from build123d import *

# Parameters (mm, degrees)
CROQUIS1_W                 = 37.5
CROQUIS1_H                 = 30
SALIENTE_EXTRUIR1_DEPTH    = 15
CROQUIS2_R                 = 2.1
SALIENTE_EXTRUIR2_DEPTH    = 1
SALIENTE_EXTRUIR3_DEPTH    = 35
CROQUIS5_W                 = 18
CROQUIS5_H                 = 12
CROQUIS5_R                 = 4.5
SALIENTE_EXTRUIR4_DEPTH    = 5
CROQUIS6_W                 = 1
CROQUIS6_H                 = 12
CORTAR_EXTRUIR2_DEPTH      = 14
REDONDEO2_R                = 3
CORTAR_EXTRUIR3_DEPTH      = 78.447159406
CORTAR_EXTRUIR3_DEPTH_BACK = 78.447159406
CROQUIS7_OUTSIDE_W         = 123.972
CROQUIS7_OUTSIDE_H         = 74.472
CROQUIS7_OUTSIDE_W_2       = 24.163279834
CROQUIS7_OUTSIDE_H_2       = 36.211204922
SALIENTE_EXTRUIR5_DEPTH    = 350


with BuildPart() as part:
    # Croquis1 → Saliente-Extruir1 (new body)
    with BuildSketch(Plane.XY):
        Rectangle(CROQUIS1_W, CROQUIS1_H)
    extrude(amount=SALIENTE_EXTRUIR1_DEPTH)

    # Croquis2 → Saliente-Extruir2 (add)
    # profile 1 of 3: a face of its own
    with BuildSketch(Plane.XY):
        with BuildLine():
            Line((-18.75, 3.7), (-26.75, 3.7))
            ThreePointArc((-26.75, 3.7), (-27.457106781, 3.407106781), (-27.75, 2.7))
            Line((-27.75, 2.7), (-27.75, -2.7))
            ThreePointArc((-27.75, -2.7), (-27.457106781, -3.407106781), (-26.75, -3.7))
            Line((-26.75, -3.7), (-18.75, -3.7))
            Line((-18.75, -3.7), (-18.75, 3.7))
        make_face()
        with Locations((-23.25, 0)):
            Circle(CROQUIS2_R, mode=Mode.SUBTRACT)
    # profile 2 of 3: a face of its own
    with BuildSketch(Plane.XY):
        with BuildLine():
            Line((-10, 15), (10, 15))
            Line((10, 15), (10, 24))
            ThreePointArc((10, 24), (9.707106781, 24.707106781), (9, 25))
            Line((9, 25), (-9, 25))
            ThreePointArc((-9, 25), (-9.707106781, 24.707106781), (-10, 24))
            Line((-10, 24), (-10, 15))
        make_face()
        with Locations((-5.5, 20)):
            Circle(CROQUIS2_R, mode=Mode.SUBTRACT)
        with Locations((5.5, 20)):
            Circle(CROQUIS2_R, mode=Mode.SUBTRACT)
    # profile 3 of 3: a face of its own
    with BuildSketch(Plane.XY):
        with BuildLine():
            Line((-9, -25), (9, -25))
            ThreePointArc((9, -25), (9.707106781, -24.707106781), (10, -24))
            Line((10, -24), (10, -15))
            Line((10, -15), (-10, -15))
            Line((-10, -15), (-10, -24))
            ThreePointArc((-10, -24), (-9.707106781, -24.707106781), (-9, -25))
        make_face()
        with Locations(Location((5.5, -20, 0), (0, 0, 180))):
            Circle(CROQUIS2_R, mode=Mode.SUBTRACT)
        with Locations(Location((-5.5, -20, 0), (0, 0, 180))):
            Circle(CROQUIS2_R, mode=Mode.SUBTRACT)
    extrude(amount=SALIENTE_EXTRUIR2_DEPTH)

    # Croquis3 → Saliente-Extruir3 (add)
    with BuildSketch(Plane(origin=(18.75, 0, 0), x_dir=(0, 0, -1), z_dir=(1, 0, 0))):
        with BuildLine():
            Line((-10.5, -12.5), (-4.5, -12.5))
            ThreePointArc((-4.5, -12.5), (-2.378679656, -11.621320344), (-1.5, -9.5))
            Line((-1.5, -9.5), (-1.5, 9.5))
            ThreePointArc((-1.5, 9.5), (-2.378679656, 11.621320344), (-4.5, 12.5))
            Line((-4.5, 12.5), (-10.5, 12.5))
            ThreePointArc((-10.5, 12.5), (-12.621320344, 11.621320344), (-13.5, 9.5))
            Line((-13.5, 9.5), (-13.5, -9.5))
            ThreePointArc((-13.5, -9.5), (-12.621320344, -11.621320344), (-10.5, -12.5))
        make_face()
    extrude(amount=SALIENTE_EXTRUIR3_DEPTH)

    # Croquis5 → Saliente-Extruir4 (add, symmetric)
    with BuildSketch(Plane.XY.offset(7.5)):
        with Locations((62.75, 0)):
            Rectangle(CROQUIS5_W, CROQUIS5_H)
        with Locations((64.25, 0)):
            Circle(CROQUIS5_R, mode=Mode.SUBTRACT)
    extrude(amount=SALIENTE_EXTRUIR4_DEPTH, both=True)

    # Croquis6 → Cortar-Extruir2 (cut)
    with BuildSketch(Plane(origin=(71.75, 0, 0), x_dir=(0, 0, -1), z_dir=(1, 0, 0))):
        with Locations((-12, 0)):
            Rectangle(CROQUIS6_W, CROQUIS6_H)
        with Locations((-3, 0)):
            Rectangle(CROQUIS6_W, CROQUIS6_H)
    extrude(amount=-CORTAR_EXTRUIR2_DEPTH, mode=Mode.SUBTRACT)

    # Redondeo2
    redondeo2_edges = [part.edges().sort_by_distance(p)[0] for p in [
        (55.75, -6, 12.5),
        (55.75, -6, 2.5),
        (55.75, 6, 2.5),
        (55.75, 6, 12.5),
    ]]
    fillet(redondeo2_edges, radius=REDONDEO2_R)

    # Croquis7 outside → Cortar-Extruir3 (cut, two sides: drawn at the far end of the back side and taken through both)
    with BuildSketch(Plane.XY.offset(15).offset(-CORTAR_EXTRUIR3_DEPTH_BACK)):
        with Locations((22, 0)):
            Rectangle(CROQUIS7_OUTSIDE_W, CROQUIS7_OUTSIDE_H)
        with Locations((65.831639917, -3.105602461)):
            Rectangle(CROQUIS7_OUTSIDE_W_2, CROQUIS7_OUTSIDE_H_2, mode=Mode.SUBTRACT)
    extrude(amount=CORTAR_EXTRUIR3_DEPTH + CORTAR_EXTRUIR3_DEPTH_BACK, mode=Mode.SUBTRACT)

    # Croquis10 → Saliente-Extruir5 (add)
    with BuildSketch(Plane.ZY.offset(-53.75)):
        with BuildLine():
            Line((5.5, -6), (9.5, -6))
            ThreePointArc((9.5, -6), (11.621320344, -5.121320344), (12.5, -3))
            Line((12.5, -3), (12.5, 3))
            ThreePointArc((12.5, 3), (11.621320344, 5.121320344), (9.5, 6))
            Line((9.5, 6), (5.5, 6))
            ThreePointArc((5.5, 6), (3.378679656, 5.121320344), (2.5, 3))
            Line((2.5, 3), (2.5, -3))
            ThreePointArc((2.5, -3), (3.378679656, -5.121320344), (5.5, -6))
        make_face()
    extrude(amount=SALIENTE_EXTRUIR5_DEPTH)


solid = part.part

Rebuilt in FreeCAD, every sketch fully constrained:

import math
import FreeCAD as App
import Part
import Sketcher
Q = App.Units.Quantity


def edges_at(feature, points):
    """Names of the edges that pass closest to the given points."""
    edges = feature.Shape.Edges
    near = lambda p: min(range(len(edges)), key=lambda i: edges[i].distToShape(Part.Vertex(*p))[0])
    return sorted({f"Edge{near(p) + 1}" for p in points})


def add_polygon(sketch, points):
    """Adds a closed chain of lines whose ends are joined by coincident constraints."""
    first, n = sketch.GeometryCount, len(points)
    for a, b in zip(points, points[1:] + points[:1]):
        sketch.addGeometry(Part.LineSegment(App.Vector(*a, 0), App.Vector(*b, 0)), False)
    for i in range(n):
        sketch.addConstraint(Sketcher.Constraint("Coincident", first + i, 2, first + (i + 1) % n, 1))

doc = App.newDocument("Part")
params = doc.addObject("Spreadsheet::Sheet", "Params")
for row, (alias, value) in enumerate([
    ("sketch1_height", "30 mm"),
    ("sketch1_width", "37.5 mm"),
    ("pad1_length", "15 mm"),
    ("sketch2_radius", "1 mm"),
    ("sketch2_diameter", "4.2 mm"),
    ("sketch2_width", "8 mm"),
    ("sketch2_width2", "20 mm"),
    ("sketch2_height", "9 mm"),
    ("pad2_length", "1 mm"),
    ("sketch3_radius", "3 mm"),
    ("sketch3_width", "19 mm"),
    ("sketch3_height", "6 mm"),
    ("pad3_length", "35 mm"),
    ("sketch4_diameter", "9 mm"),
    ("sketch4_width", "18 mm"),
    ("sketch4_height", "12 mm"),
    ("pad4_length", "10 mm"),
    ("sketch5_width", "12 mm"),
    ("sketch5_height", "1 mm"),
    ("pocket1_length", "14 mm"),
    ("fillet_radius", "3 mm"),
    ("sketch7_radius", "3 mm"),
    ("sketch7_width", "6 mm"),
    ("sketch7_height", "4 mm"),
    ("pad5_length", "350 mm"),
], start=1):
    params.set(f"A{row}", alias)
    params.set(f"B{row}", "=" + value)
    params.setAlias(f"B{row}", alias)

body = doc.addObject("PartDesign::Body", "Body")

sketch1 = doc.addObject("Sketcher::SketchObject", "Sketch")
body.addObject(sketch1)
sketch1.AttachmentSupport = (doc.XY_Plane, [""])
sketch1.MapMode = "FlatFace"
add_polygon(sketch1, [(-19, 15), (-19, -15), (19, -15), (19, 15)])
sketch1.addConstraint(Sketcher.Constraint("Vertical", 0))
sketch1.addConstraint(Sketcher.Constraint("Horizontal", 1))
sketch1.addConstraint(Sketcher.Constraint("Vertical", 2))
sketch1.addConstraint(Sketcher.Constraint("Horizontal", 3))
sketch1.addConstraint(Sketcher.Constraint("Symmetric", 0, 2, 2, 2, -1, 1))
sketch1.addConstraint(Sketcher.Constraint("DistanceY", 0, 2, 0, 1, Q("30 mm")))
sketch1.addConstraint(Sketcher.Constraint("DistanceX", 1, 1, 1, 2, Q("37.5 mm")))
sketch1.setExpression("Constraints[9]", "Params.sketch1_height")
sketch1.setExpression("Constraints[10]", "Params.sketch1_width")
pad1 = doc.addObject("PartDesign::Pad", "Pad")
body.addObject(pad1)
pad1.Profile = sketch1
pad1.setExpression("Length", "Params.pad1_length")

sketch2 = doc.addObject("Sketcher::SketchObject", "Sketch001")
body.addObject(sketch2)
sketch2.AttachmentSupport = (doc.XY_Plane, [""])
sketch2.MapMode = "FlatFace"
sketch2.addGeometry(Part.LineSegment(App.Vector(-18.8, 3.7, 0), App.Vector(-26.8, 3.7, 0)), False)
sketch2.addGeometry(Part.ArcOfCircle(Part.Circle(App.Vector(-26.7, 2.7, 0), App.Vector(0, 0, 1), 1), math.radians(90), math.radians(180)), False)
sketch2.addGeometry(Part.LineSegment(App.Vector(-27.8, 2.7, 0), App.Vector(-27.8, -2.7, 0)), False)
sketch2.addGeometry(Part.ArcOfCircle(Part.Circle(App.Vector(-26.7, -2.7, 0), App.Vector(0, 0, 1), 1), math.radians(-180), math.radians(-90)), False)
sketch2.addGeometry(Part.LineSegment(App.Vector(-26.8, -3.7, 0), App.Vector(-18.8, -3.7, 0)), False)
sketch2.addGeometry(Part.LineSegment(App.Vector(-18.8, -3.7, 0), App.Vector(-18.8, 3.7, 0)), False)
sketch2.addGeometry(Part.Circle(App.Vector(-23.2, 0, 0), App.Vector(0, 0, 1), 2.1), False)
sketch2.addGeometry(Part.LineSegment(App.Vector(-10, 15, 0), App.Vector(10, 15, 0)), False)
sketch2.addGeometry(Part.LineSegment(App.Vector(10, 15, 0), App.Vector(10, 24, 0)), False)
sketch2.addGeometry(Part.ArcOfCircle(Part.Circle(App.Vector(9, 24, 0), App.Vector(0, 0, 1), 1), math.radians(0), math.radians(90)), False)
sketch2.addGeometry(Part.LineSegment(App.Vector(9, 25, 0), App.Vector(-9, 25, 0)), False)
sketch2.addGeometry(Part.ArcOfCircle(Part.Circle(App.Vector(-9, 24, 0), App.Vector(0, 0, 1), 1), math.radians(90), math.radians(180)), False)
sketch2.addGeometry(Part.LineSegment(App.Vector(-10, 24, 0), App.Vector(-10, 15, 0)), False)
sketch2.addGeometry(Part.Circle(App.Vector(-5.5, 20, 0), App.Vector(0, 0, 1), 2.1), False)
sketch2.addGeometry(Part.Circle(App.Vector(5.5, 20, 0), App.Vector(0, 0, 1), 2.1), False)
sketch2.addGeometry(Part.LineSegment(App.Vector(-9, -25, 0), App.Vector(9, -25, 0)), False)
sketch2.addGeometry(Part.ArcOfCircle(Part.Circle(App.Vector(9, -24, 0), App.Vector(0, 0, 1), 1), math.radians(-90), math.radians(0)), False)
sketch2.addGeometry(Part.LineSegment(App.Vector(10, -24, 0), App.Vector(10, -15, 0)), False)
sketch2.addGeometry(Part.LineSegment(App.Vector(10, -15, 0), App.Vector(-10, -15, 0)), False)
sketch2.addGeometry(Part.LineSegment(App.Vector(-10, -15, 0), App.Vector(-10, -24, 0)), False)
sketch2.addGeometry(Part.ArcOfCircle(Part.Circle(App.Vector(-9, -24, 0), App.Vector(0, 0, 1), 1), math.radians(-180), math.radians(-90)), False)
sketch2.addGeometry(Part.Circle(App.Vector(-5.5, -20, 0), App.Vector(0, 0, 1), 2.1), False)
sketch2.addGeometry(Part.Circle(App.Vector(5.5, -20, 0), App.Vector(0, 0, 1), 2.1), False)
sketch2.addConstraint(Sketcher.Constraint("Tangent", 0, 2, 1, 1))
sketch2.addConstraint(Sketcher.Constraint("Tangent", 1, 2, 2, 1))
sketch2.addConstraint(Sketcher.Constraint("Tangent", 2, 2, 3, 1))
sketch2.addConstraint(Sketcher.Constraint("Tangent", 3, 2, 4, 1))
sketch2.addConstraint(Sketcher.Constraint("Coincident", 4, 2, 5, 1))
sketch2.addConstraint(Sketcher.Constraint("Coincident", 5, 2, 0, 1))
sketch2.addConstraint(Sketcher.Constraint("Coincident", 7, 2, 8, 1))
sketch2.addConstraint(Sketcher.Constraint("Tangent", 8, 2, 9, 1))
sketch2.addConstraint(Sketcher.Constraint("Tangent", 9, 2, 10, 1))
sketch2.addConstraint(Sketcher.Constraint("Tangent", 10, 2, 11, 1))
sketch2.addConstraint(Sketcher.Constraint("Tangent", 11, 2, 12, 1))
sketch2.addConstraint(Sketcher.Constraint("Coincident", 12, 2, 7, 1))
sketch2.addConstraint(Sketcher.Constraint("Tangent", 15, 2, 16, 1))
sketch2.addConstraint(Sketcher.Constraint("Tangent", 16, 2, 17, 1))
sketch2.addConstraint(Sketcher.Constraint("Coincident", 17, 2, 18, 1))
sketch2.addConstraint(Sketcher.Constraint("Coincident", 18, 2, 19, 1))
sketch2.addConstraint(Sketcher.Constraint("Tangent", 19, 2, 20, 1))
sketch2.addConstraint(Sketcher.Constraint("Tangent", 20, 2, 15, 1))
sketch2.addConstraint(Sketcher.Constraint("Horizontal", 0))
sketch2.addConstraint(Sketcher.Constraint("Vertical", 2))
sketch2.addConstraint(Sketcher.Constraint("Horizontal", 4))
sketch2.addConstraint(Sketcher.Constraint("Vertical", 5))
sketch2.addConstraint(Sketcher.Constraint("Horizontal", 7))
sketch2.addConstraint(Sketcher.Constraint("Vertical", 8))
sketch2.addConstraint(Sketcher.Constraint("Horizontal", 10))
sketch2.addConstraint(Sketcher.Constraint("Vertical", 12))
sketch2.addConstraint(Sketcher.Constraint("Horizontal", 15))
sketch2.addConstraint(Sketcher.Constraint("Vertical", 17))
sketch2.addConstraint(Sketcher.Constraint("Horizontal", 18))
sketch2.addConstraint(Sketcher.Constraint("Vertical", 19))
sketch2.addConstraint(Sketcher.Constraint("Equal", 1, 3))
sketch2.addConstraint(Sketcher.Constraint("Equal", 3, 9))
sketch2.addConstraint(Sketcher.Constraint("Equal", 9, 11))
sketch2.addConstraint(Sketcher.Constraint("Equal", 6, 13))
sketch2.addConstraint(Sketcher.Constraint("Equal", 13, 14))
sketch2.addConstraint(Sketcher.Constraint("Equal", 11, 16))
sketch2.addConstraint(Sketcher.Constraint("Equal", 16, 20))
sketch2.addConstraint(Sketcher.Constraint("Equal", 14, 21))
sketch2.addConstraint(Sketcher.Constraint("Equal", 21, 22))
sketch2.addConstraint(Sketcher.Constraint("Symmetric", 11, 3, 16, 3, -1, 1))
sketch2.addConstraint(Sketcher.Constraint("Symmetric", 14, 3, 21, 3, -1, 1))
sketch2.addConstraint(Sketcher.Constraint("Symmetric", 13, 3, 22, 3, -1, 1))
sketch2.addConstraint(Sketcher.Constraint("Symmetric", 7, 2, 18, 2, -1, 1))
sketch2.addConstraint(Sketcher.Constraint("Symmetric", 13, 3, 14, 3, -2))
sketch2.addConstraint(Sketcher.Constraint("PointOnObject", 6, 3, -1))
sketch2.addConstraint(Sketcher.Constraint("Vertical", 9, 3, 16, 3))
sketch2.addConstraint(Sketcher.Constraint("Radius", 1, Q("1 mm")))
sketch2.addConstraint(Sketcher.Constraint("Diameter", 6, Q("4.2 mm")))
sketch2.addConstraint(Sketcher.Constraint("DistanceX", 0, 2, 0, 1, Q("8 mm")))
sketch2.addConstraint(Sketcher.Constraint("DistanceX", 7, 1, 7, 2, Q("20 mm")))
sketch2.addConstraint(Sketcher.Constraint("DistanceY", 8, 1, 8, 2, Q("9 mm")))
sketch2.addConstraint(Sketcher.Constraint("DistanceY", 2, 2, 2, 1, Q("5.4 mm")))
sketch2.addConstraint(Sketcher.Constraint("DistanceY", -1, 1, 9, 3, Q("24 mm")))
sketch2.addConstraint(Sketcher.Constraint("DistanceY", -1, 1, 13, 3, Q("20 mm")))
sketch2.addConstraint(Sketcher.Constraint("DistanceX", 13, 3, 14, 3, Q("11 mm")))
sketch2.addConstraint(Sketcher.Constraint("DistanceY", -1, 1, 1, 3, Q("2.7 mm")))
sketch2.addConstraint(Sketcher.Constraint("DistanceX", 1, 3, 6, 3, Q("3.5 mm")))
sketch2.addConstraint(Sketcher.Constraint("DistanceX", 1, 3, -1, 1, Q("26.75 mm")))
sketch2.setExpression("Constraints[46]", "Params.sketch2_radius")
sketch2.setExpression("Constraints[47]", "Params.sketch2_diameter")
sketch2.setExpression("Constraints[48]", "Params.sketch2_width")
sketch2.setExpression("Constraints[49]", "Params.sketch2_width2")
sketch2.setExpression("Constraints[50]", "Params.sketch2_height")
pad2 = doc.addObject("PartDesign::Pad", "Pad001")
body.addObject(pad2)
pad2.Profile = sketch2
pad2.setExpression("Length", "Params.pad2_length")

sketch3 = doc.addObject("Sketcher::SketchObject", "Sketch002")
body.addObject(sketch3)
sketch3.AttachmentSupport = (doc.YZ_Plane, [""])
sketch3.MapMode = "FlatFace"
sketch3.AttachmentOffset = App.Placement(App.Vector(0, 0, 18.75), App.Rotation())
sketch3.addGeometry(Part.LineSegment(App.Vector(-12.5, 10.5, 0), App.Vector(-12.5, 4.5, 0)), False)
sketch3.addGeometry(Part.ArcOfCircle(Part.Circle(App.Vector(-9.5, 4.5, 0), App.Vector(0, 0, 1), 3), math.radians(180), math.radians(270)), False)
sketch3.addGeometry(Part.LineSegment(App.Vector(-9.5, 1.5, 0), App.Vector(9.5, 1.5, 0)), False)
sketch3.addGeometry(Part.ArcOfCircle(Part.Circle(App.Vector(9.5, 4.5, 0), App.Vector(0, 0, 1), 3), math.radians(-90), math.radians(0)), False)
sketch3.addGeometry(Part.LineSegment(App.Vector(12.5, 4.5, 0), App.Vector(12.5, 10.5, 0)), False)
sketch3.addGeometry(Part.ArcOfCircle(Part.Circle(App.Vector(9.5, 10.5, 0), App.Vector(0, 0, 1), 3), math.radians(0), math.radians(90)), False)
sketch3.addGeometry(Part.LineSegment(App.Vector(9.5, 13.5, 0), App.Vector(-9.5, 13.5, 0)), False)
sketch3.addGeometry(Part.ArcOfCircle(Part.Circle(App.Vector(-9.5, 10.5, 0), App.Vector(0, 0, 1), 3), math.radians(90), math.radians(180)), False)
sketch3.addConstraint(Sketcher.Constraint("Tangent", 0, 2, 1, 1))
sketch3.addConstraint(Sketcher.Constraint("Tangent", 1, 2, 2, 1))
sketch3.addConstraint(Sketcher.Constraint("Tangent", 2, 2, 3, 1))
sketch3.addConstraint(Sketcher.Constraint("Tangent", 3, 2, 4, 1))
sketch3.addConstraint(Sketcher.Constraint("Tangent", 4, 2, 5, 1))
sketch3.addConstraint(Sketcher.Constraint("Tangent", 5, 2, 6, 1))
sketch3.addConstraint(Sketcher.Constraint("Tangent", 6, 2, 7, 1))
sketch3.addConstraint(Sketcher.Constraint("Tangent", 7, 2, 0, 1))
sketch3.addConstraint(Sketcher.Constraint("Vertical", 0))
sketch3.addConstraint(Sketcher.Constraint("Horizontal", 2))
sketch3.addConstraint(Sketcher.Constraint("Vertical", 4))
sketch3.addConstraint(Sketcher.Constraint("Horizontal", 6))
sketch3.addConstraint(Sketcher.Constraint("Equal", 1, 3))
sketch3.addConstraint(Sketcher.Constraint("Equal", 3, 5))
sketch3.addConstraint(Sketcher.Constraint("Equal", 5, 7))
sketch3.addConstraint(Sketcher.Constraint("Radius", 1, Q("3 mm")))
sketch3.addConstraint(Sketcher.Constraint("DistanceX", 2, 1, 2, 2, Q("19 mm")))
sketch3.addConstraint(Sketcher.Constraint("DistanceY", 0, 2, 0, 1, Q("6 mm")))
sketch3.addConstraint(Sketcher.Constraint("DistanceX", 1, 3, -1, 1, Q("9.5 mm")))
sketch3.addConstraint(Sketcher.Constraint("DistanceY", -1, 1, 1, 3, Q("4.5 mm")))
sketch3.setExpression("Constraints[15]", "Params.sketch3_radius")
sketch3.setExpression("Constraints[16]", "Params.sketch3_width")
sketch3.setExpression("Constraints[17]", "Params.sketch3_height")
pad3 = doc.addObject("PartDesign::Pad", "Pad002")
body.addObject(pad3)
pad3.Profile = sketch3
pad3.setExpression("Length", "Params.pad3_length")

sketch4 = doc.addObject("Sketcher::SketchObject", "Sketch003")
body.addObject(sketch4)
sketch4.AttachmentSupport = (doc.XY_Plane, [""])
sketch4.MapMode = "FlatFace"
sketch4.AttachmentOffset = App.Placement(App.Vector(0, 0, 7.5), App.Rotation())
add_polygon(sketch4, [(53.8, 6), (53.8, -6), (71.8, -6), (71.8, 6)])
sketch4.addGeometry(Part.Circle(App.Vector(64.2, 0, 0), App.Vector(0, 0, 1), 4.5), False)
sketch4.addConstraint(Sketcher.Constraint("Vertical", 0))
sketch4.addConstraint(Sketcher.Constraint("Horizontal", 1))
sketch4.addConstraint(Sketcher.Constraint("Vertical", 2))
sketch4.addConstraint(Sketcher.Constraint("Horizontal", 3))
sketch4.addConstraint(Sketcher.Constraint("PointOnObject", 4, 3, -1))
sketch4.addConstraint(Sketcher.Constraint("Diameter", 4, Q("9 mm")))
sketch4.addConstraint(Sketcher.Constraint("DistanceX", 1, 1, 1, 2, Q("18 mm")))
sketch4.addConstraint(Sketcher.Constraint("DistanceY", 0, 2, 0, 1, Q("12 mm")))
sketch4.addConstraint(Sketcher.Constraint("DistanceY", 0, 2, -1, 1, Q("6 mm")))
sketch4.addConstraint(Sketcher.Constraint("DistanceX", 0, 2, 4, 3, Q("10.5 mm")))
sketch4.addConstraint(Sketcher.Constraint("DistanceX", -1, 1, 4, 3, Q("64.25 mm")))
sketch4.setExpression("Constraints[9]", "Params.sketch4_diameter")
sketch4.setExpression("Constraints[10]", "Params.sketch4_width")
sketch4.setExpression("Constraints[11]", "Params.sketch4_height")
pad4 = doc.addObject("PartDesign::Pad", "Pad003")
body.addObject(pad4)
pad4.Profile = sketch4
pad4.setExpression("Length", "Params.pad4_length")
pad4.Midplane = True

sketch5 = doc.addObject("Sketcher::SketchObject", "Sketch004")
body.addObject(sketch5)
sketch5.AttachmentSupport = (doc.YZ_Plane, [""])
sketch5.MapMode = "FlatFace"
sketch5.AttachmentOffset = App.Placement(App.Vector(0, 0, 71.75), App.Rotation())
add_polygon(sketch5, [(6, 12.5), (-6, 12.5), (-6, 11.5), (6, 11.5)])
add_polygon(sketch5, [(6, 3.5), (-6, 3.5), (-6, 2.5), (6, 2.5)])
sketch5.addConstraint(Sketcher.Constraint("Horizontal", 0))
sketch5.addConstraint(Sketcher.Constraint("Vertical", 1))
sketch5.addConstraint(Sketcher.Constraint("Horizontal", 2))
sketch5.addConstraint(Sketcher.Constraint("Vertical", 3))
sketch5.addConstraint(Sketcher.Constraint("Horizontal", 4))
sketch5.addConstraint(Sketcher.Constraint("Vertical", 5))
sketch5.addConstraint(Sketcher.Constraint("Horizontal", 6))
sketch5.addConstraint(Sketcher.Constraint("Vertical", 7))
sketch5.addConstraint(Sketcher.Constraint("Vertical", 1, 2, 4, 2))
sketch5.addConstraint(Sketcher.Constraint("Vertical", 3, 2, 6, 2))
sketch5.addConstraint(Sketcher.Constraint("Equal", 3, 5))
sketch5.addConstraint(Sketcher.Constraint("DistanceX", 0, 2, 0, 1, Q("12 mm")))
sketch5.addConstraint(Sketcher.Constraint("DistanceY", 1, 2, 1, 1, Q("1 mm")))
sketch5.addConstraint(Sketcher.Constraint("DistanceX", 0, 2, -1, 1, Q("6 mm")))
sketch5.addConstraint(Sketcher.Constraint("DistanceY", 4, 2, 1, 2, Q("8 mm")))
sketch5.addConstraint(Sketcher.Constraint("DistanceY", -1, 1, 0, 2, Q("12.5 mm")))
sketch5.setExpression("Constraints[19]", "Params.sketch5_width")
sketch5.setExpression("Constraints[20]", "Params.sketch5_height")
pocket1 = doc.addObject("PartDesign::Pocket", "Pocket")
body.addObject(pocket1)
pocket1.Profile = sketch5
pocket1.setExpression("Length", "Params.pocket1_length")
doc.recompute()

fillet = doc.addObject("PartDesign::Fillet", "Fillet")
body.addObject(fillet)
fillet.Base = (pocket1, edges_at(pocket1, [
    (55.75, -6, 12.5),
    (55.75, -6, 2.5),
    (55.75, 6, 2.5),
    (55.75, 6, 12.5),
]))
fillet.setExpression("Radius", "Params.fillet_radius")

sketch6 = doc.addObject("Sketcher::SketchObject", "Sketch005")
body.addObject(sketch6)
sketch6.AttachmentSupport = (doc.XY_Plane, [""])
sketch6.MapMode = "FlatFace"
sketch6.AttachmentOffset = App.Placement(App.Vector(0, 0, 15), App.Rotation())
add_polygon(sketch6, [(-40, 37), (-40, -37), (84, -37), (84, 37)])
add_polygon(sketch6, [(78, -21), (54, -21), (54, 15), (78, 15)])
sketch6.addConstraint(Sketcher.Constraint("Vertical", 0))
sketch6.addConstraint(Sketcher.Constraint("Horizontal", 1))
sketch6.addConstraint(Sketcher.Constraint("Vertical", 2))
sketch6.addConstraint(Sketcher.Constraint("Horizontal", 3))
sketch6.addConstraint(Sketcher.Constraint("Horizontal", 4))
sketch6.addConstraint(Sketcher.Constraint("Vertical", 5))
sketch6.addConstraint(Sketcher.Constraint("Horizontal", 6))
sketch6.addConstraint(Sketcher.Constraint("Vertical", 7))
sketch6.addConstraint(Sketcher.Constraint("DistanceY", -1, 1, 5, 2, Q("15 mm")))
sketch6.addConstraint(Sketcher.Constraint("DistanceX", 1, 1, 1, 2, Q("123.972 mm")))
sketch6.addConstraint(Sketcher.Constraint("DistanceY", 0, 2, 0, 1, Q("74.472 mm")))
sketch6.addConstraint(Sketcher.Constraint("DistanceX", -1, 1, 4, 2, Q("53.75 mm")))
sketch6.addConstraint(Sketcher.Constraint("DistanceX", 0, 2, -1, 1, Q("39.986 mm")))
sketch6.addConstraint(Sketcher.Constraint("DistanceY", 0, 2, -1, 1, Q("37.236 mm")))
sketch6.addConstraint(Sketcher.Constraint("DistanceX", 4, 2, 4, 1, Q("24.16328 mm")))
sketch6.addConstraint(Sketcher.Constraint("DistanceY", 5, 1, 5, 2, Q("36.211205 mm")))
pocket2 = doc.addObject("PartDesign::Pocket", "Pocket001")
body.addObject(pocket2)
pocket2.Profile = sketch6
pocket2.Type = "ThroughAll"
pocket2.Midplane = True

sketch7 = doc.addObject("Sketcher::SketchObject", "Sketch006")
body.addObject(sketch7)
sketch7.AttachmentSupport = (doc.YZ_Plane, [""])
sketch7.MapMode = "FlatFace"
sketch7.AttachmentOffset = App.Placement(App.Vector(0, 0, 53.75), App.Rotation())
sketch7.addGeometry(Part.LineSegment(App.Vector(-6, 5.5, 0), App.Vector(-6, 9.5, 0)), False)
sketch7.addGeometry(Part.ArcOfCircle(Part.Circle(App.Vector(-3, 9.5, 0), App.Vector(0, 0, 1), 3), math.radians(90), math.radians(180)), False)
sketch7.addGeometry(Part.LineSegment(App.Vector(-3, 12.5, 0), App.Vector(3, 12.5, 0)), False)
sketch7.addGeometry(Part.ArcOfCircle(Part.Circle(App.Vector(3, 9.5, 0), App.Vector(0, 0, 1), 3), math.radians(0), math.radians(90)), False)
sketch7.addGeometry(Part.LineSegment(App.Vector(6, 9.5, 0), App.Vector(6, 5.5, 0)), False)
sketch7.addGeometry(Part.ArcOfCircle(Part.Circle(App.Vector(3, 5.5, 0), App.Vector(0, 0, 1), 3), math.radians(-90), math.radians(0)), False)
sketch7.addGeometry(Part.LineSegment(App.Vector(3, 2.5, 0), App.Vector(-3, 2.5, 0)), False)
sketch7.addGeometry(Part.ArcOfCircle(Part.Circle(App.Vector(-3, 5.5, 0), App.Vector(0, 0, 1), 3), math.radians(180), math.radians(270)), False)
sketch7.addConstraint(Sketcher.Constraint("Tangent", 0, 2, 1, 2))
sketch7.addConstraint(Sketcher.Constraint("Tangent", 1, 1, 2, 1))
sketch7.addConstraint(Sketcher.Constraint("Tangent", 2, 2, 3, 2))
sketch7.addConstraint(Sketcher.Constraint("Tangent", 3, 1, 4, 1))
sketch7.addConstraint(Sketcher.Constraint("Tangent", 4, 2, 5, 2))
sketch7.addConstraint(Sketcher.Constraint("Tangent", 5, 1, 6, 1))
sketch7.addConstraint(Sketcher.Constraint("Tangent", 6, 2, 7, 2))
sketch7.addConstraint(Sketcher.Constraint("Tangent", 7, 1, 0, 1))
sketch7.addConstraint(Sketcher.Constraint("Vertical", 0))
sketch7.addConstraint(Sketcher.Constraint("Horizontal", 2))
sketch7.addConstraint(Sketcher.Constraint("Vertical", 4))
sketch7.addConstraint(Sketcher.Constraint("Horizontal", 6))
sketch7.addConstraint(Sketcher.Constraint("Equal", 1, 3))
sketch7.addConstraint(Sketcher.Constraint("Equal", 3, 5))
sketch7.addConstraint(Sketcher.Constraint("Equal", 5, 7))
sketch7.addConstraint(Sketcher.Constraint("Radius", 1, Q("3 mm")))
sketch7.addConstraint(Sketcher.Constraint("DistanceX", 2, 1, 2, 2, Q("6 mm")))
sketch7.addConstraint(Sketcher.Constraint("DistanceY", 0, 1, 0, 2, Q("4 mm")))
sketch7.addConstraint(Sketcher.Constraint("DistanceX", 1, 3, -1, 1, Q("3 mm")))
sketch7.addConstraint(Sketcher.Constraint("DistanceY", -1, 1, 1, 3, Q("9.5 mm")))
sketch7.setExpression("Constraints[15]", "Params.sketch7_radius")
sketch7.setExpression("Constraints[16]", "Params.sketch7_width")
sketch7.setExpression("Constraints[17]", "Params.sketch7_height")
pad5 = doc.addObject("PartDesign::Pad", "Pad004")
body.addObject(pad5)
pad5.Profile = sketch7
pad5.setExpression("Length", "Params.pad5_length")
pad5.Reversed = True

doc.recompute()
